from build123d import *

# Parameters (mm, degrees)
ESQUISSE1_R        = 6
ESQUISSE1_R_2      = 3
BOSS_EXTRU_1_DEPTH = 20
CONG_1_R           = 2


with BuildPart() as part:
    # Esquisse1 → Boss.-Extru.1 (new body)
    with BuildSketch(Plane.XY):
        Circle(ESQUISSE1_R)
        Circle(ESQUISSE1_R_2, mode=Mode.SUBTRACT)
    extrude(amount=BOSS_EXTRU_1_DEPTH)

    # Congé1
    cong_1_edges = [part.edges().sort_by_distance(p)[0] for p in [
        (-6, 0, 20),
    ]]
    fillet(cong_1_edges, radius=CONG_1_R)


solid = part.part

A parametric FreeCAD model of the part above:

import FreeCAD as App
import Part
import Sketcher
from FreeCAD import Vector


def edges_at(feature, points):
    """Names of the edges that pass closest to the given points."""
    edges = feature.Shape.Edges
    near = lambda p: min(range(len(edges)), key=lambda i: edges[i].distToShape(Part.Vertex(*p))[0])
    return sorted({f"Edge{near(p) + 1}" for p in points})

doc = App.newDocument("Part")
body = doc.addObject("PartDesign::Body", "Body")

# Sketch on XY plane
sketch1 = body.newObject("Sketcher::SketchObject", "Sketch")
sketch1.AttachmentSupport = (doc.getObject("XY_Plane"), [""])
sketch1.MapMode = "FlatFace"
sketch1.addGeometry([
    Part.Circle(Vector(0, 0, 0), Vector(0, 0, 1), 6),
    Part.Circle(Vector(0, 0, 0), Vector(0, 0, 1), 3),
], False)
sketch1.addConstraint([
    Sketcher.Constraint("Coincident", 0, 3, -1, 1),
    Sketcher.Constraint("Coincident", 1, 3, -1, 1),
    Sketcher.Constraint("Diameter", 0, 12.0),
    Sketcher.Constraint("Diameter", 1, 6.0),
])
pad1 = body.newObject("PartDesign::Pad", "Pad")
pad1.Profile = sketch1
pad1.Length = 20
doc.recompute()

fillet = body.newObject("PartDesign::Fillet", "Fillet")
fillet.Base = (pad1, edges_at(pad1, [(-6, 0, 20)]))
fillet.Radius = 2

doc.recompute()
